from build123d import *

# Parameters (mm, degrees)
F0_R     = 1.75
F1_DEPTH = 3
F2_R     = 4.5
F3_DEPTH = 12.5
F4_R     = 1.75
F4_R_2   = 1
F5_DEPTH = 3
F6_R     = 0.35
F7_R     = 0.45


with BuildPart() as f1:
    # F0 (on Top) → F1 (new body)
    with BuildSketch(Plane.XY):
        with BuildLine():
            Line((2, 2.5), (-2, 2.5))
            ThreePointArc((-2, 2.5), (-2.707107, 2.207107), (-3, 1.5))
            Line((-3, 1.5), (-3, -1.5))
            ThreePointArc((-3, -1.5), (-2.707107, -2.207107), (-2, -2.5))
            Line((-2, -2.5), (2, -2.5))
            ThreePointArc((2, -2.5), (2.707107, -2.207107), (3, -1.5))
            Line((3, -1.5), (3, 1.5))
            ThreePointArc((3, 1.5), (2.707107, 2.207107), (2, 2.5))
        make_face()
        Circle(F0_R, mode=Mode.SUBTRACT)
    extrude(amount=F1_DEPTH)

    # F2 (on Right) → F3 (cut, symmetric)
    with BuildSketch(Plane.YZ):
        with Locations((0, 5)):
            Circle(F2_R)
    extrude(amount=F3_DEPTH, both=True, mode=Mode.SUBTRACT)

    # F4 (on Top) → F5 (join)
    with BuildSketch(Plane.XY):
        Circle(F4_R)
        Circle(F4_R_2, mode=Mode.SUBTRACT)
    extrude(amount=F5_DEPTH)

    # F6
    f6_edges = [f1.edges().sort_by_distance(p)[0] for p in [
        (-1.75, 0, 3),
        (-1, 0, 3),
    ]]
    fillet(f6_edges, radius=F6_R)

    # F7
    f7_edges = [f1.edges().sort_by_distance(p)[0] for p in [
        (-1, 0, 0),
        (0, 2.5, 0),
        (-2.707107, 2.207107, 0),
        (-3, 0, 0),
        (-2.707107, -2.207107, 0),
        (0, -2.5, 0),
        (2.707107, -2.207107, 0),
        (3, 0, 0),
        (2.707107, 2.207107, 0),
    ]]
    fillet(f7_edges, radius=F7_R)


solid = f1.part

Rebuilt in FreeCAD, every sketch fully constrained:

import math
import FreeCAD as App
import Part
import Sketcher
Q = App.Units.Quantity


def edges_at(feature, points):
    """Names of the edges that pass closest to the given points."""
    edges = feature.Shape.Edges
    near = lambda p: min(range(len(edges)), key=lambda i: edges[i].distToShape(Part.Vertex(*p))[0])
    return sorted({f"Edge{near(p) + 1}" for p in points})

doc = App.newDocument("Part")
params = doc.addObject("Spreadsheet::Sheet", "Params")
for row, (alias, value) in enumerate([
    ("sketch1_radius", "0.999999 mm"),
    ("sketch1_diameter", "3.5 mm"),
    ("sketch1_width", "4 mm"),
    ("sketch1_height", "3 mm"),
    ("pad1_length", "3 mm"),
    ("sketch2_diameter", "9 mm"),
    ("pocket1_length", "25 mm"),
    ("sketch3_diameter", "2 mm"),
    ("sketch3_diameter2", "3.5 mm"),
    ("pad2_length", "3 mm"),
    ("fillet_radius", "0.35 mm"),
    ("fillet2_radius", "0.45 mm"),
], start=1):
    params.set(f"A{row}", alias)
    params.set(f"B{row}", "=" + value)
    params.setAlias(f"B{row}", alias)

body = doc.addObject("PartDesign::Body", "Body")

# Sketch on XY plane
sketch1 = doc.addObject("Sketcher::SketchObject", "Sketch")
body.addObject(sketch1)
sketch1.AttachmentSupport = (doc.XY_Plane, [""])
sketch1.MapMode = "FlatFace"
sketch1.addGeometry([
    Part.LineSegment(App.Vector(2, 2.5, 0), App.Vector(-2, 2.5, 0)),  # 0
    Part.ArcOfCircle(Part.Circle(App.Vector(-2, 1.5, 0), App.Vector(0, 0, 1), 1), math.radians(90), math.radians(180)),  # 1
    Part.LineSegment(App.Vector(-3, 1.5, 0), App.Vector(-3, -1.5, 0)),  # 2
    Part.ArcOfCircle(Part.Circle(App.Vector(-2, -1.5, 0), App.Vector(0, 0, 1), 1), math.radians(180), math.radians(270)),  # 3
    Part.LineSegment(App.Vector(-2, -2.5, 0), App.Vector(2, -2.5, 0)),  # 4
    Part.ArcOfCircle(Part.Circle(App.Vector(2, -1.5, 0), App.Vector(0, 0, 1), 1), math.radians(-90), math.radians(0)),  # 5
    Part.LineSegment(App.Vector(3, -1.5, 0), App.Vector(3, 1.5, 0)),  # 6
    Part.ArcOfCircle(Part.Circle(App.Vector(2, 1.5, 0), App.Vector(0, 0, 1), 1), math.radians(0), math.radians(90)),  # 7
    Part.Circle(App.Vector(0, 0, 0), App.Vector(0, 0, 1), 1.8),  # 8
], False)
sketch1.addConstraint([
    Sketcher.Constraint("Tangent", 0, 2, 1, 1),
    Sketcher.Constraint("Tangent", 1, 2, 2, 1),
    Sketcher.Constraint("Tangent", 2, 2, 3, 1),
    Sketcher.Constraint("Tangent", 3, 2, 4, 1),
    Sketcher.Constraint("Tangent", 4, 2, 5, 1),
    Sketcher.Constraint("Tangent", 5, 2, 6, 1),
    Sketcher.Constraint("Tangent", 6, 2, 7, 1),
    Sketcher.Constraint("Tangent", 7, 2, 0, 1),
    Sketcher.Constraint("Horizontal", 0),
    Sketcher.Constraint("Vertical", 2),
    Sketcher.Constraint("Horizontal", 4),
    Sketcher.Constraint("Vertical", 6),
    Sketcher.Constraint("Coincident", 8, 3, -1, 1),
    Sketcher.Constraint("Equal", 1, 3),
    Sketcher.Constraint("Equal", 3, 5),
    Sketcher.Constraint("Equal", 5, 7),
    Sketcher.Constraint("Symmetric", 1, 3, 5, 3, -1, 1),
    Sketcher.Constraint("Radius", 1, Q("0.999999 mm")),
    Sketcher.Constraint("Diameter", 8, Q("3.5 mm")),
    Sketcher.Constraint("DistanceX", 0, 2, 0, 1, Q("4 mm")),
    Sketcher.Constraint("DistanceY", 2, 2, 2, 1, Q("3 mm")),
])
sketch1.setExpression("Constraints[17]", "Params.sketch1_radius")
sketch1.setExpression("Constraints[18]", "Params.sketch1_diameter")
sketch1.setExpression("Constraints[19]", "Params.sketch1_width")
sketch1.setExpression("Constraints[20]", "Params.sketch1_height")
pad1 = doc.addObject("PartDesign::Pad", "Pad")
body.addObject(pad1)
pad1.Profile = sketch1
pad1.setExpression("Length", "Params.pad1_length")

# Sketch on YZ plane
sketch2 = doc.addObject("Sketcher::SketchObject", "Sketch001")
body.addObject(sketch2)
sketch2.AttachmentSupport = (doc.YZ_Plane, [""])
sketch2.MapMode = "FlatFace"
sketch2.addGeometry(Part.Circle(App.Vector(0, 5, 0), App.Vector(0, 0, 1), 4.5), False)
sketch2.addConstraint([
    Sketcher.Constraint("PointOnObject", 0, 3, -2),
    Sketcher.Constraint("Diameter", 0, Q("9 mm")),
    Sketcher.Constraint("DistanceY", -1, 1, 0, 3, Q("5 mm")),
])
sketch2.setExpression("Constraints[1]", "Params.sketch2_diameter")
pocket1 = doc.addObject("PartDesign::Pocket", "Pocket")
body.addObject(pocket1)
pocket1.Profile = sketch2
pocket1.setExpression("Length", "Params.pocket1_length")
pocket1.Midplane = True

# Sketch on XY plane
sketch3 = doc.addObject("Sketcher::SketchObject", "Sketch002")
body.addObject(sketch3)
sketch3.AttachmentSupport = (doc.XY_Plane, [""])
sketch3.MapMode = "FlatFace"
sketch3.addGeometry([
    Part.Circle(App.Vector(0, 0, 0), App.Vector(0, 0, 1), 1.8),
    Part.Circle(App.Vector(0, 0, 0), App.Vector(0, 0, 1), 1),
], False)
sketch3.addConstraint([
    Sketcher.Constraint("Coincident", 0, 3, -1, 1),
    Sketcher.Constraint("Coincident", 1, 3, -1, 1),
    Sketcher.Constraint("Diameter", 1, Q("2 mm")),
    Sketcher.Constraint("Diameter", 0, Q("3.5 mm")),
])
sketch3.setExpression("Constraints[2]", "Params.sketch3_diameter")
sketch3.setExpression("Constraints[3]", "Params.sketch3_diameter2")
pad2 = doc.addObject("PartDesign::Pad", "Pad001")
body.addObject(pad2)
pad2.Profile = sketch3
pad2.setExpression("Length", "Params.pad2_length")
doc.recompute()

fillet = doc.addObject("PartDesign::Fillet", "Fillet")
body.addObject(fillet)
fillet.Base = (pad2, edges_at(pad2, [(-1.75, 0, 3), (-1, 0, 3)]))
fillet.setExpression("Radius", "Params.fillet_radius")
doc.recompute()

fillet2 = doc.addObject("PartDesign::Fillet", "Fillet001")
body.addObject(fillet2)
fillet2.Base = (fillet, edges_at(fillet, [
    (-1, 0, 0),
    (0, 2.5, 0),
    (-2.707, 2.207, 0),
    (-3, 0, 0),
    (-2.707, -2.207, 0),
    (0, -2.5, 0),
    (2.707, -2.207, 0),
    (3, 0, 0),
    (2.707, 2.207, 0),
]))
fillet2.setExpression("Radius", "Params.fillet2_radius")

doc.recompute()
